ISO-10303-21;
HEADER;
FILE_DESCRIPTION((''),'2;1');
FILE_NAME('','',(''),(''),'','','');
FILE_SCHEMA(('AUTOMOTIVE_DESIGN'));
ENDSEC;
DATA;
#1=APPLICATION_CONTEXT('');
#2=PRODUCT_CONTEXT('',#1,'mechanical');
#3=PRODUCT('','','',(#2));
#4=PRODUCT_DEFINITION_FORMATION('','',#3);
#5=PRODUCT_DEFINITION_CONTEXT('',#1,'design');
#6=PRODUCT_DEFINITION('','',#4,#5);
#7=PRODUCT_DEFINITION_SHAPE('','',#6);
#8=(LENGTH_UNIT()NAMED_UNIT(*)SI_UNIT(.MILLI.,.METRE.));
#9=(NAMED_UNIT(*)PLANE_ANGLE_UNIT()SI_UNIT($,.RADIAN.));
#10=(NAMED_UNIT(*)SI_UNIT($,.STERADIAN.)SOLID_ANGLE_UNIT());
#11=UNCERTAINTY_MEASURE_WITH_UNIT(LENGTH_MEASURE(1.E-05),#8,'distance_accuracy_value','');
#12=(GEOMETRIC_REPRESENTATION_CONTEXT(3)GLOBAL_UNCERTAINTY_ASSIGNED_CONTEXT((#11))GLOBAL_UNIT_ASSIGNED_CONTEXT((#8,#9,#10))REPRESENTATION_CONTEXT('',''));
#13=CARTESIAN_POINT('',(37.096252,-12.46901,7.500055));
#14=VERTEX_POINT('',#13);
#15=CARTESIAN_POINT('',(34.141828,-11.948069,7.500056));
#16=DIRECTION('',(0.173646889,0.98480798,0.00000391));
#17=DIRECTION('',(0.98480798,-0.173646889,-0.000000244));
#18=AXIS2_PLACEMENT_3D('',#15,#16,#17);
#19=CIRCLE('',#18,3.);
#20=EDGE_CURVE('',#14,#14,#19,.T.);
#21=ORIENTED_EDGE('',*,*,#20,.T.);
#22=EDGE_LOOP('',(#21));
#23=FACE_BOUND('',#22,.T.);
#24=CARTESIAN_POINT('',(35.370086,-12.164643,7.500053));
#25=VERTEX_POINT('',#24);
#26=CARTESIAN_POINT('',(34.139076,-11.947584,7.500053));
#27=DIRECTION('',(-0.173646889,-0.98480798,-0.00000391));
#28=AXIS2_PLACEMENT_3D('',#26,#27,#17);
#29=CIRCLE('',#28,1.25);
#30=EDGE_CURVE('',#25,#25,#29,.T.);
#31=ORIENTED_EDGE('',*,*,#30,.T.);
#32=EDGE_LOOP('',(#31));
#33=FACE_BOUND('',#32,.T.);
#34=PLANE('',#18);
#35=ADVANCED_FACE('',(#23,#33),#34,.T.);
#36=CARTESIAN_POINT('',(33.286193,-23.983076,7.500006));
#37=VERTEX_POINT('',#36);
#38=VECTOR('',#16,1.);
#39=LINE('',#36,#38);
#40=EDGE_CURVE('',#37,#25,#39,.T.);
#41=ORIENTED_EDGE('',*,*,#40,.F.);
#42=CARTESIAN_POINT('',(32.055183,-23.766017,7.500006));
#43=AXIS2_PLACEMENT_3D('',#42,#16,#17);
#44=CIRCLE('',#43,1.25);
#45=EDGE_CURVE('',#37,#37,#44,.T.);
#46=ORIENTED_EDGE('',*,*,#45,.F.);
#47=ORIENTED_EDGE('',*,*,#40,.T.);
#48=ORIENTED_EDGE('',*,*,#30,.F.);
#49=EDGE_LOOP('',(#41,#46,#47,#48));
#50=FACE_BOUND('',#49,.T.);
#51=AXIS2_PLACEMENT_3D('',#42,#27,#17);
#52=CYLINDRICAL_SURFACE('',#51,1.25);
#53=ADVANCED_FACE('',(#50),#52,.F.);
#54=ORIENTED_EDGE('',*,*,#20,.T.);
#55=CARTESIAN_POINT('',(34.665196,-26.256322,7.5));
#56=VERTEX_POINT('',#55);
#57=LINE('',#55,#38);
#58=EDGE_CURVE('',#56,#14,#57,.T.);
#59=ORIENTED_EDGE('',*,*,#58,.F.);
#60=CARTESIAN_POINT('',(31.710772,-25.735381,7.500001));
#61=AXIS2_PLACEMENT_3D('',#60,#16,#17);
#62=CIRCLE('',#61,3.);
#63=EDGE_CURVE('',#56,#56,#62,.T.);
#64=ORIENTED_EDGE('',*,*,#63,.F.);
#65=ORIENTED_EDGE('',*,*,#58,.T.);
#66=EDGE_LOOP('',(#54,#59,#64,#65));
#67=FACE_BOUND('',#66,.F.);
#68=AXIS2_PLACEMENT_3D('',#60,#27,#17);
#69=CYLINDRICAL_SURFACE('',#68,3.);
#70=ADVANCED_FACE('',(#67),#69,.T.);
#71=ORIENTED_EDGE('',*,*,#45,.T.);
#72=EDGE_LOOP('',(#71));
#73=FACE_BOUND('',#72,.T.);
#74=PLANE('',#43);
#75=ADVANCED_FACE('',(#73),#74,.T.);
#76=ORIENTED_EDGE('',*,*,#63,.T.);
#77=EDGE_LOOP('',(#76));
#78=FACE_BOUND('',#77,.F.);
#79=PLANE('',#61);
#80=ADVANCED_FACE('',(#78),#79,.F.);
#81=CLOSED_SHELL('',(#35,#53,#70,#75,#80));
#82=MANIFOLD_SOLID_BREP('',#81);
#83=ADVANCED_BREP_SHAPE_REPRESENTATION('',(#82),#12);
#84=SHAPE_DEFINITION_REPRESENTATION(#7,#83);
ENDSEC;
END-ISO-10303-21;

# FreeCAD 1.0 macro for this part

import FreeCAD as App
import Part
import Sketcher
Q = App.Units.Quantity

doc = App.newDocument("Part")
body = doc.addObject("PartDesign::Body", "Body")

# Sketch on XY plane
sketch1 = doc.addObject("Sketcher::SketchObject", "Sketch")
body.addObject(sketch1)
sketch1.AttachmentSupport = (doc.XY_Plane, [""])
sketch1.MapMode = "FlatFace"
sketch1.addGeometry(Part.Circle(App.Vector(0, 0, 0), App.Vector(0, 0, 1), 1.25), False)
sketch1.addConstraint(Sketcher.Constraint("Coincident", 0, 3, -1, 1))
sketch1.addConstraint(Sketcher.Constraint("Diameter", 0, Q("2.5 mm")))
pad1 = doc.addObject("PartDesign::Pad", "Pad")
body.addObject(pad1)
pad1.Profile = sketch1
pad1.Length = 14
body2 = doc.addObject("PartDesign::Body", "Body001")
doc.recompute()

body.Placement = App.Placement(App.Vector(0, 0, 0), App.Rotation(App.Vector(1, 0, 0), 270.000224))
boolean = doc.addObject("PartDesign::Boolean", "Boolean")
body2.addObject(boolean)
boolean.Type = "Fuse"
boolean.addObjects([body])
body3 = doc.addObject("PartDesign::Body", "Body002")
doc.recompute()

body2.Placement = App.Placement(App.Vector(0, 0, 0), App.Rotation(App.Vector(0, 1, 0), 0.000014))
boolean2 = doc.addObject("PartDesign::Boolean", "Boolean001")
body3.addObject(boolean2)
boolean2.Type = "Fuse"
boolean2.addObjects([body2])
body4 = doc.addObject("PartDesign::Body", "Body003")
doc.recompute()

body3.Placement = App.Placement(App.Vector(32.055183, -23.766017, 7.500006), App.Rotation(App.Vector(0, 0, 1), 350.000075))
boolean3 = doc.addObject("PartDesign::Boolean", "Boolean002")
body4.addObject(boolean3)
boolean3.Type = "Fuse"
boolean3.addObjects([body3])
body5 = doc.addObject("PartDesign::Body", "Body004")

# Sketch on XY plane
sketch2 = doc.addObject("Sketcher::SketchObject", "Sketch001")
body5.addObject(sketch2)
sketch2.AttachmentSupport = (doc.getObject("XY_Plane004"), [""])
sketch2.MapMode = "FlatFace"
sketch2.addGeometry(Part.Circle(App.Vector(0, 0, 0), App.Vector(0, 0, 1), 3), False)
sketch2.addConstraint(Sketcher.Constraint("Coincident", 0, 3, -1, 1))
sketch2.addConstraint(Sketcher.Constraint("Diameter", 0, Q("6 mm")))
pad2 = doc.addObject("PartDesign::Pad", "Pad001")
body5.addObject(pad2)
pad2.Profile = sketch2
pad2.Length = 14
body6 = doc.addObject("PartDesign::Body", "Body005")
doc.recompute()

body5.Placement = App.Placement(App.Vector(0, 0, 0), App.Rotation(App.Vector(1, 0, 0), 270.000224))
boolean4 = doc.addObject("PartDesign::Boolean", "Boolean003")
body6.addObject(boolean4)
boolean4.Type = "Fuse"
boolean4.addObjects([body5])
body7 = doc.addObject("PartDesign::Body", "Body006")
doc.recompute()

body6.Placement = App.Placement(App.Vector(0, 0, 0), App.Rotation(App.Vector(0, 1, 0), 0.000014))
boolean5 = doc.addObject("PartDesign::Boolean", "Boolean004")
body7.addObject(boolean5)
boolean5.Type = "Fuse"
boolean5.addObjects([body6])
body8 = doc.addObject("PartDesign::Body", "Body007")
doc.recompute()

body7.Placement = App.Placement(App.Vector(31.710772, -25.735381, 7.500001), App.Rotation(App.Vector(0, 0, 1), 350.000075))
boolean6 = doc.addObject("PartDesign::Boolean", "Boolean005")
body8.addObject(boolean6)
boolean6.Type = "Fuse"
boolean6.addObjects([body7])
doc.recompute()

boolean7 = doc.addObject("PartDesign::Boolean", "Boolean006")
body8.addObject(boolean7)
boolean7.Type = "Cut"
boolean7.addObjects([body4])

doc.recompute()
